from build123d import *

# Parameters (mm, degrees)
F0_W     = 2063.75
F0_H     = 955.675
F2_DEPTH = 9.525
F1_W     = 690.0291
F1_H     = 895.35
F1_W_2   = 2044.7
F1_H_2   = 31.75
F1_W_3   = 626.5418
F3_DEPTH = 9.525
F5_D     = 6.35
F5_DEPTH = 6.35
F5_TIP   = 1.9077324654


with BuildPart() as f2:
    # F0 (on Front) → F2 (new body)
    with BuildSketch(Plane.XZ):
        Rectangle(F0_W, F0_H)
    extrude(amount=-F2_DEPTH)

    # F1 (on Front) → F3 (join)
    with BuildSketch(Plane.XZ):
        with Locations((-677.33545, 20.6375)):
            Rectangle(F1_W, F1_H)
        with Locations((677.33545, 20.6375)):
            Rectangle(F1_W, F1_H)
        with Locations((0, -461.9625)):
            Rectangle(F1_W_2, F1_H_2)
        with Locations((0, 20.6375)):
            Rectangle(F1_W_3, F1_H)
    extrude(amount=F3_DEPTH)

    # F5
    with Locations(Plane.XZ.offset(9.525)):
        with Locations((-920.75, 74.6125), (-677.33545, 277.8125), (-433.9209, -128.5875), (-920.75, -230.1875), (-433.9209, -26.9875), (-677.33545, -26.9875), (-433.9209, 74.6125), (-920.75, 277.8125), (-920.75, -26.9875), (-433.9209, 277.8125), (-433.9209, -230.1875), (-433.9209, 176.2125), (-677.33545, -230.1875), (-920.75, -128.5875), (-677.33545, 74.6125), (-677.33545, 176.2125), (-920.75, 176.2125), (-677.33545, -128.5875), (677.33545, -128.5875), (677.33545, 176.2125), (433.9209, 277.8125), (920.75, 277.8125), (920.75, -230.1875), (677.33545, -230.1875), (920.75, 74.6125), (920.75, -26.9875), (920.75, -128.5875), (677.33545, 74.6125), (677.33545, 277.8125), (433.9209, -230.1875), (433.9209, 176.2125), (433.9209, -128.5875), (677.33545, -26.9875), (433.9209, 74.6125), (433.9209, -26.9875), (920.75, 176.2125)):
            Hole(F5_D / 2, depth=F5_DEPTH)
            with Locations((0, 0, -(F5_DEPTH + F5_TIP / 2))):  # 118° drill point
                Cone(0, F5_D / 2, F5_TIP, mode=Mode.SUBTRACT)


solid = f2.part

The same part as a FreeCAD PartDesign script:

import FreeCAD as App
import Part
import Sketcher
from FreeCAD import Vector
Q = App.Units.Quantity

doc = App.newDocument("Part")
body = doc.addObject("PartDesign::Body", "Body")

sketch1 = body.newObject("Sketcher::SketchObject", "Sketch")
sketch1.AttachmentSupport = (doc.getObject("XZ_Plane"), [""])
sketch1.MapMode = "FlatFace"
sketch1.addGeometry(Part.LineSegment(Vector(-1031.875, 477.8375, 0), Vector(-1031.875, -477.8375, 0)), False)
sketch1.addGeometry(Part.LineSegment(Vector(-1031.875, -477.8375, 0), Vector(1031.875, -477.8375, 0)), False)
sketch1.addGeometry(Part.LineSegment(Vector(1031.875, -477.8375, 0), Vector(1031.875, 477.8375, 0)), False)
sketch1.addGeometry(Part.LineSegment(Vector(1031.875, 477.8375, 0), Vector(-1031.875, 477.8375, 0)), False)
sketch1.addConstraint(Sketcher.Constraint("Coincident", 0, 2, 1, 1))
sketch1.addConstraint(Sketcher.Constraint("Coincident", 1, 2, 2, 1))
sketch1.addConstraint(Sketcher.Constraint("Coincident", 2, 2, 3, 1))
sketch1.addConstraint(Sketcher.Constraint("Coincident", 3, 2, 0, 1))
sketch1.addConstraint(Sketcher.Constraint("Vertical", 0))
sketch1.addConstraint(Sketcher.Constraint("Horizontal", 1))
sketch1.addConstraint(Sketcher.Constraint("Vertical", 2))
sketch1.addConstraint(Sketcher.Constraint("Horizontal", 3))
sketch1.addConstraint(Sketcher.Constraint("Symmetric", 0, 2, 2, 2, -1, 1))
sketch1.addConstraint(Sketcher.Constraint("DistanceX", 1, 1, 1, 2, Q("81.25 in")))
sketch1.addConstraint(Sketcher.Constraint("DistanceY", 0, 2, 0, 1, Q("37.625 in")))
pad1 = body.newObject("PartDesign::Pad", "Pad")
pad1.Profile = sketch1
pad1.Length = Q("0.375 in")
pad1.Reversed = True

sketch2 = body.newObject("Sketcher::SketchObject", "Sketch001")
sketch2.AttachmentSupport = (doc.getObject("XZ_Plane"), [""])
sketch2.MapMode = "FlatFace"
sketch2.addGeometry(Part.LineSegment(Vector(-1022.35, 468.3125, 0), Vector(-1022.35, -427.0375, 0)), False)
sketch2.addGeometry(Part.LineSegment(Vector(-1022.35, -427.0375, 0), Vector(-332.3209, -427.0375, 0)), False)
sketch2.addGeometry(Part.LineSegment(Vector(-332.3209, -427.0375, 0), Vector(-332.3209, 468.3125, 0)), False)
sketch2.addGeometry(Part.LineSegment(Vector(-332.3209, 468.3125, 0), Vector(-1022.35, 468.3125, 0)), False)
sketch2.addGeometry(Part.LineSegment(Vector(332.3209, 468.3125, 0), Vector(332.3209, -427.0375, 0)), False)
sketch2.addGeometry(Part.LineSegment(Vector(332.3209, -427.0375, 0), Vector(1022.35, -427.0375, 0)), False)
sketch2.addGeometry(Part.LineSegment(Vector(1022.35, -427.0375, 0), Vector(1022.35, 468.3125, 0)), False)
sketch2.addGeometry(Part.LineSegment(Vector(1022.35, 468.3125, 0), Vector(332.3209, 468.3125, 0)), False)
sketch2.addGeometry(Part.LineSegment(Vector(-1022.35, -446.0875, 0), Vector(-1022.35, -477.8375, 0)), False)
sketch2.addGeometry(Part.LineSegment(Vector(-1022.35, -477.8375, 0), Vector(1022.35, -477.8375, 0)), False)
sketch2.addGeometry(Part.LineSegment(Vector(1022.35, -477.8375, 0), Vector(1022.35, -446.0875, 0)), False)
sketch2.addGeometry(Part.LineSegment(Vector(1022.35, -446.0875, 0), Vector(-1022.35, -446.0875, 0)), False)
sketch2.addGeometry(Part.LineSegment(Vector(-313.2709, 468.3125, 0), Vector(-313.2709, -427.0375, 0)), False)
sketch2.addGeometry(Part.LineSegment(Vector(-313.2709, -427.0375, 0), Vector(313.2709, -427.0375, 0)), False)
sketch2.addGeometry(Part.LineSegment(Vector(313.2709, -427.0375, 0), Vector(313.2709, 468.3125, 0)), False)
sketch2.addGeometry(Part.LineSegment(Vector(313.2709, 468.3125, 0), Vector(-313.2709, 468.3125, 0)), False)
sketch2.addConstraint(Sketcher.Constraint("Coincident", 0, 2, 1, 1))
sketch2.addConstraint(Sketcher.Constraint("Coincident", 1, 2, 2, 1))
sketch2.addConstraint(Sketcher.Constraint("Coincident", 2, 2, 3, 1))
sketch2.addConstraint(Sketcher.Constraint("Coincident", 3, 2, 0, 1))
sketch2.addConstraint(Sketcher.Constraint("Coincident", 4, 2, 5, 1))
sketch2.addConstraint(Sketcher.Constraint("Coincident", 5, 2, 6, 1))
sketch2.addConstraint(Sketcher.Constraint("Coincident", 6, 2, 7, 1))
sketch2.addConstraint(Sketcher.Constraint("Coincident", 7, 2, 4, 1))
sketch2.addConstraint(Sketcher.Constraint("Coincident", 8, 2, 9, 1))
sketch2.addConstraint(Sketcher.Constraint("Coincident", 9, 2, 10, 1))
sketch2.addConstraint(Sketcher.Constraint("Coincident", 10, 2, 11, 1))
sketch2.addConstraint(Sketcher.Constraint("Coincident", 11, 2, 8, 1))
sketch2.addConstraint(Sketcher.Constraint("Coincident", 12, 2, 13, 1))
sketch2.addConstraint(Sketcher.Constraint("Coincident", 13, 2, 14, 1))
sketch2.addConstraint(Sketcher.Constraint("Coincident", 14, 2, 15, 1))
sketch2.addConstraint(Sketcher.Constraint("Coincident", 15, 2, 12, 1))
sketch2.addConstraint(Sketcher.Constraint("Vertical", 0))
sketch2.addConstraint(Sketcher.Constraint("Horizontal", 1))
sketch2.addConstraint(Sketcher.Constraint("Vertical", 2))
sketch2.addConstraint(Sketcher.Constraint("Horizontal", 3))
sketch2.addConstraint(Sketcher.Constraint("Vertical", 4))
sketch2.addConstraint(Sketcher.Constraint("Horizontal", 5))
sketch2.addConstraint(Sketcher.Constraint("Vertical", 6))
sketch2.addConstraint(Sketcher.Constraint("Horizontal", 7))
sketch2.addConstraint(Sketcher.Constraint("Vertical", 8))
sketch2.addConstraint(Sketcher.Constraint("Horizontal", 9))
sketch2.addConstraint(Sketcher.Constraint("Vertical", 10))
sketch2.addConstraint(Sketcher.Constraint("Horizontal", 11))
sketch2.addConstraint(Sketcher.Constraint("Vertical", 12))
sketch2.addConstraint(Sketcher.Constraint("Horizontal", 13))
sketch2.addConstraint(Sketcher.Constraint("Vertical", 14))
sketch2.addConstraint(Sketcher.Constraint("Horizontal", 15))
sketch2.addConstraint(Sketcher.Constraint("Symmetric", 1, 2, 4, 2, -2))
sketch2.addConstraint(Sketcher.Constraint("Symmetric", 3, 2, 6, 2, -2))
sketch2.addConstraint(Sketcher.Constraint("Horizontal", 5, 2, 12, 2))
sketch2.addConstraint(Sketcher.Constraint("Horizontal", 7, 2, 14, 2))
sketch2.addConstraint(Sketcher.Constraint("Vertical", 3, 2, 8, 2))
sketch2.addConstraint(Sketcher.Constraint("Vertical", 6, 2, 9, 2))
sketch2.addConstraint(Sketcher.Constraint("DistanceX", 9, 1, 9, 2, Q("80.5 in")))
sketch2.addConstraint(Sketcher.Constraint("DistanceY", 8, 2, 0, 2, Q("2 in")))
sketch2.addConstraint(Sketcher.Constraint("DistanceY", 10, 2, 6, 2, Q("36 in")))
sketch2.addConstraint(Sketcher.Constraint("DistanceY", 0, 2, 0, 1, Q("35.25 in")))
sketch2.addConstraint(Sketcher.Constraint("DistanceX", 13, 1, 13, 2, Q("24.667 in")))
sketch2.addConstraint(Sketcher.Constraint("DistanceX", 1, 2, 12, 2, Q("0.75 in")))
sketch2.addConstraint(Sketcher.Constraint("DistanceX", 13, 2, 4, 2, Q("0.75 in")))
sketch2.addConstraint(Sketcher.Constraint("DistanceY", 0, 2, -1, 1, Q("16.8125 in")))
pad2 = body.newObject("PartDesign::Pad", "Pad001")
pad2.Profile = sketch2
pad2.Length = Q("0.375 in")

sketch3 = body.newObject("Sketcher::SketchObject", "Sketch002")
sketch3.AttachmentSupport = (doc.getObject("XZ_Plane"), [""])
sketch3.MapMode = "FlatFace"
sketch3.AttachmentOffset = App.Placement(Vector(0, 0, 0.375 * 25.4), App.Rotation())
sketch3.addGeometry(Part.Circle(Vector(-920.75, 74.6125, 0), Vector(0, 0, 1), 3.175), False)
sketch3.addGeometry(Part.Circle(Vector(-677.33545, 277.8125, 0), Vector(0, 0, 1), 3.175), False)
sketch3.addGeometry(Part.Circle(Vector(-433.9209, -128.5875, 0), Vector(0, 0, 1), 3.175), False)
sketch3.addGeometry(Part.Circle(Vector(-920.75, -230.1875, 0), Vector(0, 0, 1), 3.175), False)
sketch3.addGeometry(Part.Circle(Vector(-433.9209, -26.9875, 0), Vector(0, 0, 1), 3.175), False)
sketch3.addGeometry(Part.Circle(Vector(-677.33545, -26.9875, 0), Vector(0, 0, 1), 3.175), False)
sketch3.addGeometry(Part.Circle(Vector(-433.9209, 74.6125, 0), Vector(0, 0, 1), 3.175), False)
sketch3.addGeometry(Part.Circle(Vector(-920.75, 277.8125, 0), Vector(0, 0, 1), 3.175), False)
sketch3.addGeometry(Part.Circle(Vector(-920.75, -26.9875, 0), Vector(0, 0, 1), 3.175), False)
sketch3.addGeometry(Part.Circle(Vector(-433.9209, 277.8125, 0), Vector(0, 0, 1), 3.175), False)
sketch3.addGeometry(Part.Circle(Vector(-433.9209, -230.1875, 0), Vector(0, 0, 1), 3.175), False)
sketch3.addGeometry(Part.Circle(Vector(-433.9209, 176.2125, 0), Vector(0, 0, 1), 3.175), False)
sketch3.addGeometry(Part.Circle(Vector(-677.33545, -230.1875, 0), Vector(0, 0, 1), 3.175), False)
sketch3.addGeometry(Part.Circle(Vector(-920.75, -128.5875, 0), Vector(0, 0, 1), 3.175), False)
sketch3.addGeometry(Part.Circle(Vector(-677.33545, 74.6125, 0), Vector(0, 0, 1), 3.175), False)
sketch3.addGeometry(Part.Circle(Vector(-677.33545, 176.2125, 0), Vector(0, 0, 1), 3.175), False)
sketch3.addGeometry(Part.Circle(Vector(-920.75, 176.2125, 0), Vector(0, 0, 1), 3.175), False)
sketch3.addGeometry(Part.Circle(Vector(-677.33545, -128.5875, 0), Vector(0, 0, 1), 3.175), False)
sketch3.addGeometry(Part.Circle(Vector(677.33545, -128.5875, 0), Vector(0, 0, 1), 3.175), False)
sketch3.addGeometry(Part.Circle(Vector(677.33545, 176.2125, 0), Vector(0, 0, 1), 3.175), False)
sketch3.addGeometry(Part.Circle(Vector(433.9209, 277.8125, 0), Vector(0, 0, 1), 3.175), False)
sketch3.addGeometry(Part.Circle(Vector(920.75, 277.8125, 0), Vector(0, 0, 1), 3.175), False)
sketch3.addGeometry(Part.Circle(Vector(920.75, -230.1875, 0), Vector(0, 0, 1), 3.175), False)
sketch3.addGeometry(Part.Circle(Vector(677.33545, -230.1875, 0), Vector(0, 0, 1), 3.175), False)
sketch3.addGeometry(Part.Circle(Vector(920.75, 74.6125, 0), Vector(0, 0, 1), 3.175), False)
sketch3.addGeometry(Part.Circle(Vector(920.75, -26.9875, 0), Vector(0, 0, 1), 3.175), False)
sketch3.addGeometry(Part.Circle(Vector(920.75, -128.5875, 0), Vector(0, 0, 1), 3.175), False)
sketch3.addGeometry(Part.Circle(Vector(677.33545, 74.6125, 0), Vector(0, 0, 1), 3.175), False)
sketch3.addGeometry(Part.Circle(Vector(677.33545, 277.8125, 0), Vector(0, 0, 1), 3.175), False)
sketch3.addGeometry(Part.Circle(Vector(433.9209, -230.1875, 0), Vector(0, 0, 1), 3.175), False)
sketch3.addGeometry(Part.Circle(Vector(433.9209, 176.2125, 0), Vector(0, 0, 1), 3.175), False)
sketch3.addGeometry(Part.Circle(Vector(433.9209, -128.5875, 0), Vector(0, 0, 1), 3.175), False)
sketch3.addGeometry(Part.Circle(Vector(677.33545, -26.9875, 0), Vector(0, 0, 1), 3.175), False)
sketch3.addGeometry(Part.Circle(Vector(433.9209, 74.6125, 0), Vector(0, 0, 1), 3.175), False)
sketch3.addGeometry(Part.Circle(Vector(433.9209, -26.9875, 0), Vector(0, 0, 1), 3.175), False)
sketch3.addGeometry(Part.Circle(Vector(920.75, 176.2125, 0), Vector(0, 0, 1), 3.175), False)
sketch3.addConstraint(Sketcher.Constraint("Equal", 0, 1))
sketch3.addConstraint(Sketcher.Constraint("Equal", 1, 2))
sketch3.addConstraint(Sketcher.Constraint("Equal", 2, 3))
sketch3.addConstraint(Sketcher.Constraint("Equal", 3, 4))
sketch3.addConstraint(Sketcher.Constraint("Equal", 4, 5))
sketch3.addConstraint(Sketcher.Constraint("Equal", 5, 6))
sketch3.addConstraint(Sketcher.Constraint("Equal", 6, 7))
sketch3.addConstraint(Sketcher.Constraint("Equal", 7, 8))
sketch3.addConstraint(Sketcher.Constraint("Equal", 8, 9))
sketch3.addConstraint(Sketcher.Constraint("Equal", 9, 10))
sketch3.addConstraint(Sketcher.Constraint("Equal", 10, 11))
sketch3.addConstraint(Sketcher.Constraint("Equal", 11, 12))
sketch3.addConstraint(Sketcher.Constraint("Equal", 12, 13))
sketch3.addConstraint(Sketcher.Constraint("Equal", 13, 14))
sketch3.addConstraint(Sketcher.Constraint("Equal", 14, 15))
sketch3.addConstraint(Sketcher.Constraint("Equal", 15, 16))
sketch3.addConstraint(Sketcher.Constraint("Equal", 16, 17))
sketch3.addConstraint(Sketcher.Constraint("Equal", 17, 18))
sketch3.addConstraint(Sketcher.Constraint("Equal", 18, 19))
sketch3.addConstraint(Sketcher.Constraint("Equal", 19, 20))
sketch3.addConstraint(Sketcher.Constraint("Equal", 20, 21))
sketch3.addConstraint(Sketcher.Constraint("Equal", 21, 22))
sketch3.addConstraint(Sketcher.Constraint("Equal", 22, 23))
sketch3.addConstraint(Sketcher.Constraint("Equal", 23, 24))
sketch3.addConstraint(Sketcher.Constraint("Equal", 24, 25))
sketch3.addConstraint(Sketcher.Constraint("Equal", 25, 26))
sketch3.addConstraint(Sketcher.Constraint("Equal", 26, 27))
sketch3.addConstraint(Sketcher.Constraint("Equal", 27, 28))
sketch3.addConstraint(Sketcher.Constraint("Equal", 28, 29))
sketch3.addConstraint(Sketcher.Constraint("Equal", 29, 30))
sketch3.addConstraint(Sketcher.Constraint("Equal", 30, 31))
sketch3.addConstraint(Sketcher.Constraint("Equal", 31, 32))
sketch3.addConstraint(Sketcher.Constraint("Equal", 32, 33))
sketch3.addConstraint(Sketcher.Constraint("Equal", 33, 34))
sketch3.addConstraint(Sketcher.Constraint("Equal", 34, 35))
sketch3.addConstraint(Sketcher.Constraint("Symmetric", 17, 3, 18, 3, -2))
sketch3.addConstraint(Sketcher.Constraint("Symmetric", 15, 3, 19, 3, -2))
sketch3.addConstraint(Sketcher.Constraint("Symmetric", 9, 3, 20, 3, -2))
sketch3.addConstraint(Sketcher.Constraint("Symmetric", 7, 3, 21, 3, -2))
sketch3.addConstraint(Sketcher.Constraint("Symmetric", 3, 3, 22, 3, -2))
sketch3.addConstraint(Sketcher.Constraint("Symmetric", 12, 3, 23, 3, -2))
sketch3.addConstraint(Sketcher.Constraint("Symmetric", 0, 3, 24, 3, -2))
sketch3.addConstraint(Sketcher.Constraint("Symmetric", 8, 3, 25, 3, -2))
sketch3.addConstraint(Sketcher.Constraint("Symmetric", 13, 3, 26, 3, -2))
sketch3.addConstraint(Sketcher.Constraint("Symmetric", 14, 3, 27, 3, -2))
sketch3.addConstraint(Sketcher.Constraint("Symmetric", 1, 3, 28, 3, -2))
sketch3.addConstraint(Sketcher.Constraint("Symmetric", 10, 3, 29, 3, -2))
sketch3.addConstraint(Sketcher.Constraint("Symmetric", 11, 3, 30, 3, -2))
sketch3.addConstraint(Sketcher.Constraint("Symmetric", 2, 3, 31, 3, -2))
sketch3.addConstraint(Sketcher.Constraint("Symmetric", 5, 3, 32, 3, -2))
sketch3.addConstraint(Sketcher.Constraint("Symmetric", 6, 3, 33, 3, -2))
sketch3.addConstraint(Sketcher.Constraint("Symmetric", 4, 3, 34, 3, -2))
sketch3.addConstraint(Sketcher.Constraint("Symmetric", 16, 3, 35, 3, -2))
sketch3.addConstraint(Sketcher.Constraint("Horizontal", 4, 3, 5, 3))
sketch3.addConstraint(Sketcher.Constraint("Horizontal", 0, 3, 6, 3))
sketch3.addConstraint(Sketcher.Constraint("Horizontal", 1, 3, 7, 3))
sketch3.addConstraint(Sketcher.Constraint("Horizontal", 5, 3, 8, 3))
sketch3.addConstraint(Sketcher.Constraint("Horizontal", 7, 3, 9, 3))
sketch3.addConstraint(Sketcher.Constraint("Horizontal", 3, 3, 10, 3))
sketch3.addConstraint(Sketcher.Constraint("Horizontal", 10, 3, 12, 3))
sketch3.addConstraint(Sketcher.Constraint("Horizontal", 2, 3, 13, 3))
sketch3.addConstraint(Sketcher.Constraint("Horizontal", 6, 3, 14, 3))
sketch3.addConstraint(Sketcher.Constraint("Horizontal", 11, 3, 15, 3))
sketch3.addConstraint(Sketcher.Constraint("Horizontal", 15, 3, 16, 3))
sketch3.addConstraint(Sketcher.Constraint("Horizontal", 13, 3, 17, 3))
sketch3.addConstraint(Sketcher.Constraint("Vertical", 0, 3, 3, 3))
sketch3.addConstraint(Sketcher.Constraint("Vertical", 2, 3, 4, 3))
sketch3.addConstraint(Sketcher.Constraint("Vertical", 1, 3, 5, 3))
sketch3.addConstraint(Sketcher.Constraint("Vertical", 4, 3, 6, 3))
sketch3.addConstraint(Sketcher.Constraint("Vertical", 3, 3, 7, 3))
sketch3.addConstraint(Sketcher.Constraint("Vertical", 7, 3, 8, 3))
sketch3.addConstraint(Sketcher.Constraint("Vertical", 6, 3, 9, 3))
sketch3.addConstraint(Sketcher.Constraint("Vertical", 9, 3, 10, 3))
sketch3.addConstraint(Sketcher.Constraint("Vertical", 10, 3, 11, 3))
sketch3.addConstraint(Sketcher.Constraint("Vertical", 5, 3, 12, 3))
sketch3.addConstraint(Sketcher.Constraint("Vertical", 8, 3, 13, 3))
sketch3.addConstraint(Sketcher.Constraint("Vertical", 12, 3, 14, 3))
sketch3.addConstraint(Sketcher.Constraint("Vertical", 14, 3, 15, 3))
sketch3.addConstraint(Sketcher.Constraint("Vertical", 13, 3, 16, 3))
sketch3.addConstraint(Sketcher.Constraint("Vertical", 15, 3, 17, 3))
sketch3.addConstraint(Sketcher.Constraint("Diameter", 0, Q("0.25 in")))
sketch3.addConstraint(Sketcher.Constraint("DistanceY", 0, 3, 1, 3, Q("8 in")))
sketch3.addConstraint(Sketcher.Constraint("DistanceY", 2, 3, 1, 3, Q("16 in")))
sketch3.addConstraint(Sketcher.Constraint("DistanceY", 3, 3, 0, 3, Q("12 in")))
sketch3.addConstraint(Sketcher.Constraint("DistanceY", 2, 3, 4, 3, Q("4 in")))
sketch3.addConstraint(Sketcher.Constraint("DistanceY", 11, 3, 9, 3, Q("4 in")))
sketch3.addConstraint(Sketcher.Constraint("DistanceX", 0, 3, -1, 1, Q("36.25 in")))
sketch3.addConstraint(Sketcher.Constraint("DistanceY", -1, 1, 0, 3, Q("2.9375 in")))
sketch3.addConstraint(Sketcher.Constraint("DistanceX", 9, 3, 20, 3, Q("34.167 in")))
sketch3.addConstraint(Sketcher.Constraint("DistanceX", 1, 3, -1, 1, Q("677.33545 mm")))
doc.recompute()
hole = body.newObject("PartDesign::Hole", "Hole")
hole.Profile = sketch3
hole.ThreadType = "None"
hole.Diameter = Q("0.25 in")
hole.DepthType = "Dimension"
hole.Depth = Q("0.25 in")
hole.DrillPoint = "Angled"
hole.DrillPointAngle = 118

doc.recompute()
